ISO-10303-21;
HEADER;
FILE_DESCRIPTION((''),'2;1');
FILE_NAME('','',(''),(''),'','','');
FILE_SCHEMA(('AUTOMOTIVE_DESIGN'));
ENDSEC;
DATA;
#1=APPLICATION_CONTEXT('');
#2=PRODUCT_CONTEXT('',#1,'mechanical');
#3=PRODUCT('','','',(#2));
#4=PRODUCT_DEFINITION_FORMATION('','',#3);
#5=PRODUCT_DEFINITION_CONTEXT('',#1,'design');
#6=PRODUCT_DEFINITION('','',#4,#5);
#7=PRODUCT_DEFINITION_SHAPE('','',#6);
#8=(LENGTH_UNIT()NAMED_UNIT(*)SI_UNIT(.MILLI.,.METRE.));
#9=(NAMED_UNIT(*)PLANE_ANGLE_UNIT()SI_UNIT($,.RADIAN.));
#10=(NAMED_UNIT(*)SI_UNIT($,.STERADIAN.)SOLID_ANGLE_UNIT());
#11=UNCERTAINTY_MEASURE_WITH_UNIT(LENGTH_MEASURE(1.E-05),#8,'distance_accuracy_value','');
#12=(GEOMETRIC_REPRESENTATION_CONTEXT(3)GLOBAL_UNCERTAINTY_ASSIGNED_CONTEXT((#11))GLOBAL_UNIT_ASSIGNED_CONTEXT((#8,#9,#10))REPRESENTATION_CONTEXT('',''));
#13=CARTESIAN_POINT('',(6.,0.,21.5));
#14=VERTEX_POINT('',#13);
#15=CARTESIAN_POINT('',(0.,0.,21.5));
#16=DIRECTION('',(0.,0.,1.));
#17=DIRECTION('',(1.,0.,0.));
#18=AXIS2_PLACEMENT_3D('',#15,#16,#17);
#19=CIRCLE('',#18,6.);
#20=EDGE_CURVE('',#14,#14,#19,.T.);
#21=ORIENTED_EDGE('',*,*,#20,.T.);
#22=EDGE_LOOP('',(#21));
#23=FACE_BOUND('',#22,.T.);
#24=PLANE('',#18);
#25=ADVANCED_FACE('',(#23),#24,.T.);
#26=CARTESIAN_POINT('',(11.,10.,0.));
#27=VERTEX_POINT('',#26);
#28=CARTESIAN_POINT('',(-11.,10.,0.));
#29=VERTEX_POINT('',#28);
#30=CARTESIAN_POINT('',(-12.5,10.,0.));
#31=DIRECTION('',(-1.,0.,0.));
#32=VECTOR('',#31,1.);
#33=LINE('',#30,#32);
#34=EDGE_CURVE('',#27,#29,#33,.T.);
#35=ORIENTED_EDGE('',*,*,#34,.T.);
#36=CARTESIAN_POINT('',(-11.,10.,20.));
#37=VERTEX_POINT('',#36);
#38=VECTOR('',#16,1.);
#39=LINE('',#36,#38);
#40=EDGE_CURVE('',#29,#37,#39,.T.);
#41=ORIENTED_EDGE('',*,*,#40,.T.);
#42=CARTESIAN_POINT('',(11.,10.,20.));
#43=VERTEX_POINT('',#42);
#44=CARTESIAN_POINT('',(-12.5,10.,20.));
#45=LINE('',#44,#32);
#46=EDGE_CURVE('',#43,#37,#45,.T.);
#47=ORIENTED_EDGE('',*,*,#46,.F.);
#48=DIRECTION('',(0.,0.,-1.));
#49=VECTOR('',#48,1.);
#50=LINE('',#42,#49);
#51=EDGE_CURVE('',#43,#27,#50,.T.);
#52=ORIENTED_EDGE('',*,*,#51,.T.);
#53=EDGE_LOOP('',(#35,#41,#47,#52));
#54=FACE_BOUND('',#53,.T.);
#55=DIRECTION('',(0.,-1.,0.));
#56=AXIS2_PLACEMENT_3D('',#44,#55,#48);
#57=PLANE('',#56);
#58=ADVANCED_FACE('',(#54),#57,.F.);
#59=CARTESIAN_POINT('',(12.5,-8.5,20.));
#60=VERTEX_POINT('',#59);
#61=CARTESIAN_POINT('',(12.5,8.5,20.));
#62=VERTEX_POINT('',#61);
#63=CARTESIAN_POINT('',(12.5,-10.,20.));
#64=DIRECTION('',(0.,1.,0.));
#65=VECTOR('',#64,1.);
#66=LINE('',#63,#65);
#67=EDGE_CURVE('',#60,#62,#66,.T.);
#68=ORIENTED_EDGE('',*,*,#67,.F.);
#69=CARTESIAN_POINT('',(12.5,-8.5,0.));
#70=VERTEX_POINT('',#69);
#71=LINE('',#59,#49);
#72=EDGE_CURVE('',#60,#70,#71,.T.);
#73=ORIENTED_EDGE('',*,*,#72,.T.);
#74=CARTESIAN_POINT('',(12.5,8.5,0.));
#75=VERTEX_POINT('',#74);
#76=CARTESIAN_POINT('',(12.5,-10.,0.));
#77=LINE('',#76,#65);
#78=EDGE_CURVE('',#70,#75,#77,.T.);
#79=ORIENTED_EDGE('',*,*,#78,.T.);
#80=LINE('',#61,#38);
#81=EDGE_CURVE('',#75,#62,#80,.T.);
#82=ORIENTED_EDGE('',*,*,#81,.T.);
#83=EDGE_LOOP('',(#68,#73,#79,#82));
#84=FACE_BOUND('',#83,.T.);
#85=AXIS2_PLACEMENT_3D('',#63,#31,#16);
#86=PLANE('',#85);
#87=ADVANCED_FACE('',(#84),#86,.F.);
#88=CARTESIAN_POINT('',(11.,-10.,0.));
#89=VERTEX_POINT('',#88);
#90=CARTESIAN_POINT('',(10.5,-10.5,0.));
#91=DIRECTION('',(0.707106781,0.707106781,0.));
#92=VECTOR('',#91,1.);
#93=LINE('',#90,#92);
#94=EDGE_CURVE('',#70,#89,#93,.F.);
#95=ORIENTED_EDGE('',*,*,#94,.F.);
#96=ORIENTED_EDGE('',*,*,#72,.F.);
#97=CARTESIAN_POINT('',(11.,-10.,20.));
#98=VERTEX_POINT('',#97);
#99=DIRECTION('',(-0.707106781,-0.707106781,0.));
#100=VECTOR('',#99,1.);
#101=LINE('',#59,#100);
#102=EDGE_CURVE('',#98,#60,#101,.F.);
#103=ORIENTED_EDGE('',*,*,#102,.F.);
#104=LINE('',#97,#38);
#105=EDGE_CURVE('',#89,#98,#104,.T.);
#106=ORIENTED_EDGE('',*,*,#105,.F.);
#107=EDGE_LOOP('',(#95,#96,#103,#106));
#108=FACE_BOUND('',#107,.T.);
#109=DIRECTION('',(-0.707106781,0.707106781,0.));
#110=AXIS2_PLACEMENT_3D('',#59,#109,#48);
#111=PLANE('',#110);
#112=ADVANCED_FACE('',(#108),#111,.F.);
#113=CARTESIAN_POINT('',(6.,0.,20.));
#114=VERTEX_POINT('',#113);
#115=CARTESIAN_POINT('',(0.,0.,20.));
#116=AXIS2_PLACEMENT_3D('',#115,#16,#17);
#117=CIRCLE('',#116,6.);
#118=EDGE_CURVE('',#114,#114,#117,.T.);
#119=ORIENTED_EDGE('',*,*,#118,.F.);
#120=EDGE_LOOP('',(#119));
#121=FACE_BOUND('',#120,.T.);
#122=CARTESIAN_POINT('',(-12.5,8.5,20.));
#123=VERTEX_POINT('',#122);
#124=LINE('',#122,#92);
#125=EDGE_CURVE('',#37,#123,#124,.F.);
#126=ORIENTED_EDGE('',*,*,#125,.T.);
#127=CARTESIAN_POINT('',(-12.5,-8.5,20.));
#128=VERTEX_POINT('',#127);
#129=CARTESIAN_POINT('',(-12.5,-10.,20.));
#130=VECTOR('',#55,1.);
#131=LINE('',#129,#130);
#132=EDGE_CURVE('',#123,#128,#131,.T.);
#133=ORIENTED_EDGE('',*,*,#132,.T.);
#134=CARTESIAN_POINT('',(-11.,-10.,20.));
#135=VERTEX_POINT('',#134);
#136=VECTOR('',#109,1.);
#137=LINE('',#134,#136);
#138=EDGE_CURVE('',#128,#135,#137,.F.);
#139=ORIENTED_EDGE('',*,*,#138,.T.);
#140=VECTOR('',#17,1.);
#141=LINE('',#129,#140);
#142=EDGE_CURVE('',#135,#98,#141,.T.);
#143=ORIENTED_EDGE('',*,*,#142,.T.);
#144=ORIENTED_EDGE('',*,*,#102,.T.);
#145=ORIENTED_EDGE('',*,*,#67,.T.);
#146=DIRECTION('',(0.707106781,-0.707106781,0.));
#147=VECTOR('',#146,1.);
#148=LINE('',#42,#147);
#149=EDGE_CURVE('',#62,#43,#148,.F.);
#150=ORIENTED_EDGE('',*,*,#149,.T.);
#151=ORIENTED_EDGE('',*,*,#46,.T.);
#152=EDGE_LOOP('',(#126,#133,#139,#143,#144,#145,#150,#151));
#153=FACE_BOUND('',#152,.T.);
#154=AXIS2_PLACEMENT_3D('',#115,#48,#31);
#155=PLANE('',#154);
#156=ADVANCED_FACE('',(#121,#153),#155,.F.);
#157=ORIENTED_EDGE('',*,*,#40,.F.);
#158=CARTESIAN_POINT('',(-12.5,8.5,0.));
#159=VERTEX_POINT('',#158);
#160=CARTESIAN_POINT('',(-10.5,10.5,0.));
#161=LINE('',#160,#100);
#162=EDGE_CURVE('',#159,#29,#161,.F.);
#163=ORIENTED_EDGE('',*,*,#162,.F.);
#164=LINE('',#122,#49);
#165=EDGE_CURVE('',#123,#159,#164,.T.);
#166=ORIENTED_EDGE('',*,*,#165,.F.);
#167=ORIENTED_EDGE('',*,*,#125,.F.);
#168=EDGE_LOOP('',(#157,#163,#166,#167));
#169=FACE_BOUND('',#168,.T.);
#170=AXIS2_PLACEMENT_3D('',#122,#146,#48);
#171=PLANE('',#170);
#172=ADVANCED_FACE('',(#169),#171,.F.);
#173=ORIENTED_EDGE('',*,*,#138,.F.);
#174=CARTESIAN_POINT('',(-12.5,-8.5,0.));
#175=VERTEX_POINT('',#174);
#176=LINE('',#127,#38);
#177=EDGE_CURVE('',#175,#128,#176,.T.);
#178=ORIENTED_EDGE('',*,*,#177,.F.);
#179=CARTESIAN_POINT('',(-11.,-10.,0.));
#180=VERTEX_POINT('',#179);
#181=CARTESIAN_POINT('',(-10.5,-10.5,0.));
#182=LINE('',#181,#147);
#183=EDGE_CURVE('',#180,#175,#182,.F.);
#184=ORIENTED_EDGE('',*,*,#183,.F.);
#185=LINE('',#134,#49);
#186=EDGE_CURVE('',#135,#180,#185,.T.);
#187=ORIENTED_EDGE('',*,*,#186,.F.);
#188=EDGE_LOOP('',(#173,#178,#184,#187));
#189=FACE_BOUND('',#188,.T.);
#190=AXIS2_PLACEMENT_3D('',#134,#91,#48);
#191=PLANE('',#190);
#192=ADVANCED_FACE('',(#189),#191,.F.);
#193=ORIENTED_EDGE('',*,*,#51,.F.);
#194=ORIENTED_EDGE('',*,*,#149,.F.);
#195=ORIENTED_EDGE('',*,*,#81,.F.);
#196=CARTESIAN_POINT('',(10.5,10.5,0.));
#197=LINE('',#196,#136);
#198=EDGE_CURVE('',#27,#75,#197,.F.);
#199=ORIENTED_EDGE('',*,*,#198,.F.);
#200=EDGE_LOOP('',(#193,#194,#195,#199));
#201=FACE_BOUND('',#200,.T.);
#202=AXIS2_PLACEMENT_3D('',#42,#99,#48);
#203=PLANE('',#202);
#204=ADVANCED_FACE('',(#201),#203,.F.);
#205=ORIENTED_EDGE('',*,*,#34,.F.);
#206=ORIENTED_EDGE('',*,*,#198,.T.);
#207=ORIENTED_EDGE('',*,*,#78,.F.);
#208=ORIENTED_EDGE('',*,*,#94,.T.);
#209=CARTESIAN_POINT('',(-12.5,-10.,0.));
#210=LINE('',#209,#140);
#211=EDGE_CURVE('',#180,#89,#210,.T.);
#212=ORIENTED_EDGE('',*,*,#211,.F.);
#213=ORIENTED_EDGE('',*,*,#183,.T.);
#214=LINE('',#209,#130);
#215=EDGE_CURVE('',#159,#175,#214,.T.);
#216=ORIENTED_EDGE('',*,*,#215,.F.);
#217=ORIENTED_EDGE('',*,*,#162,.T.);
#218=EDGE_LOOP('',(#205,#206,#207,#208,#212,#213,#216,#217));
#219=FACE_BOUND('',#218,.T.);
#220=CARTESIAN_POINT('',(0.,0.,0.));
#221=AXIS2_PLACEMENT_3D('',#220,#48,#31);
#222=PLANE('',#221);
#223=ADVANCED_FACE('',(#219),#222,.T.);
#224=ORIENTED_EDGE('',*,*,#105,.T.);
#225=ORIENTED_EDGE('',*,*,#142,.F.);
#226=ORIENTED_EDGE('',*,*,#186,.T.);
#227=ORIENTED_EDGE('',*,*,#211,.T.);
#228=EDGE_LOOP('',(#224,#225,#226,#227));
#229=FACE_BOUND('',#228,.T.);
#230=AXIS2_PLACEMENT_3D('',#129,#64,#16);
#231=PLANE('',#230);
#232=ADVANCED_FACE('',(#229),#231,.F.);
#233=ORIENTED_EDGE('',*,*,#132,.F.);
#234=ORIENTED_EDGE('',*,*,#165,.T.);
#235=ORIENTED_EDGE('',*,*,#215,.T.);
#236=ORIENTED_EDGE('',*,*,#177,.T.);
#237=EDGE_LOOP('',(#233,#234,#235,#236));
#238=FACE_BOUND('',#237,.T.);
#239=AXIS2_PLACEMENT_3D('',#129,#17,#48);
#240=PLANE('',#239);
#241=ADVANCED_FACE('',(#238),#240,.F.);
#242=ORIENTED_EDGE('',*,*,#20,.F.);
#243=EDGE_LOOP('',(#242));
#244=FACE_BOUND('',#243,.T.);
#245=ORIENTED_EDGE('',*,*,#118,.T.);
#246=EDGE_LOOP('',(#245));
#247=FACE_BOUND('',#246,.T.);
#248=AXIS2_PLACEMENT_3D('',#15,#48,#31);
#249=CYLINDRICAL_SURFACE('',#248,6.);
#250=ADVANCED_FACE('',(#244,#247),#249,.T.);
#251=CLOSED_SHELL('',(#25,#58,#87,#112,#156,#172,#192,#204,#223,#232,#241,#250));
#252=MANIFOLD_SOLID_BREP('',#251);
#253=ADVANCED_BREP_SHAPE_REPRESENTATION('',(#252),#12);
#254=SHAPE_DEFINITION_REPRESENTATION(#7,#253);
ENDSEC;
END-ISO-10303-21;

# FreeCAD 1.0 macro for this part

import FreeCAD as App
import Part
import Sketcher

V = App.Vector


def edges_at(feature, points):
    """Names of the edges that pass closest to the given points."""
    edges = feature.Shape.Edges
    near = lambda p: min(range(len(edges)), key=lambda i: edges[i].distToShape(Part.Vertex(*p))[0])
    return sorted({f"Edge{near(p) + 1}" for p in points})


def add_polygon(sketch, points):
    """Adds a closed chain of lines whose ends are joined by coincident constraints."""
    first, n = sketch.GeometryCount, len(points)
    for a, b in zip(points, points[1:] + points[:1]):
        sketch.addGeometry(Part.LineSegment(App.Vector(*a, 0), App.Vector(*b, 0)), False)
    for i in range(n):
        sketch.addConstraint(Sketcher.Constraint("Coincident", first + i, 2, first + (i + 1) % n, 1))

doc = App.newDocument("Part")
body = doc.addObject("PartDesign::Body", "Body")

sketch1 = body.newObject("Sketcher::SketchObject", "Sketch")
sketch1.AttachmentSupport = (doc.getObject("XY_Plane"), [""])
sketch1.MapMode = "FlatFace"
add_polygon(sketch1, [(-12.5, 10), (-12.5, -10), (12.5, -10), (12.5, 10)])
sketch1.addConstraint(Sketcher.Constraint("Vertical", 0))
sketch1.addConstraint(Sketcher.Constraint("Horizontal", 1))
sketch1.addConstraint(Sketcher.Constraint("Vertical", 2))
sketch1.addConstraint(Sketcher.Constraint("Horizontal", 3))
sketch1.addConstraint(Sketcher.Constraint("Symmetric", 0, 2, 2, 2, -1, 1))
sketch1.addConstraint(Sketcher.Constraint("DistanceX", 1, 1, 1, 2, 25.0))
sketch1.addConstraint(Sketcher.Constraint("DistanceY", 0, 2, 0, 1, 20.0))
pad1 = body.newObject("PartDesign::Pad", "Pad")
pad1.Profile = sketch1
pad1.Length = 20
doc.recompute()

chamfer = body.newObject("PartDesign::Chamfer", "Chamfer")
chamfer.Base = (pad1, edges_at(pad1, [
    (12.5, -10, 10),
    (-12.5, -10, 10),
    (-12.5, 10, 10),
    (12.5, 10, 10),
]))
chamfer.Size = 1.5

sketch2 = body.newObject("Sketcher::SketchObject", "Sketch001")
sketch2.AttachmentSupport = (doc.getObject("XY_Plane"), [""])
sketch2.MapMode = "FlatFace"
sketch2.AttachmentOffset = App.Placement(V(0, 0, 20), App.Rotation())
sketch2.addGeometry(Part.Circle(V(0, 0, 0), V(0, 0, 1), 6), False)
sketch2.addConstraint(Sketcher.Constraint("Coincident", 0, 3, -1, 1))
sketch2.addConstraint(Sketcher.Constraint("Diameter", 0, 12.0))
pad2 = body.newObject("PartDesign::Pad", "Pad001")
pad2.Profile = sketch2
pad2.Length = 1.5

doc.recompute()
